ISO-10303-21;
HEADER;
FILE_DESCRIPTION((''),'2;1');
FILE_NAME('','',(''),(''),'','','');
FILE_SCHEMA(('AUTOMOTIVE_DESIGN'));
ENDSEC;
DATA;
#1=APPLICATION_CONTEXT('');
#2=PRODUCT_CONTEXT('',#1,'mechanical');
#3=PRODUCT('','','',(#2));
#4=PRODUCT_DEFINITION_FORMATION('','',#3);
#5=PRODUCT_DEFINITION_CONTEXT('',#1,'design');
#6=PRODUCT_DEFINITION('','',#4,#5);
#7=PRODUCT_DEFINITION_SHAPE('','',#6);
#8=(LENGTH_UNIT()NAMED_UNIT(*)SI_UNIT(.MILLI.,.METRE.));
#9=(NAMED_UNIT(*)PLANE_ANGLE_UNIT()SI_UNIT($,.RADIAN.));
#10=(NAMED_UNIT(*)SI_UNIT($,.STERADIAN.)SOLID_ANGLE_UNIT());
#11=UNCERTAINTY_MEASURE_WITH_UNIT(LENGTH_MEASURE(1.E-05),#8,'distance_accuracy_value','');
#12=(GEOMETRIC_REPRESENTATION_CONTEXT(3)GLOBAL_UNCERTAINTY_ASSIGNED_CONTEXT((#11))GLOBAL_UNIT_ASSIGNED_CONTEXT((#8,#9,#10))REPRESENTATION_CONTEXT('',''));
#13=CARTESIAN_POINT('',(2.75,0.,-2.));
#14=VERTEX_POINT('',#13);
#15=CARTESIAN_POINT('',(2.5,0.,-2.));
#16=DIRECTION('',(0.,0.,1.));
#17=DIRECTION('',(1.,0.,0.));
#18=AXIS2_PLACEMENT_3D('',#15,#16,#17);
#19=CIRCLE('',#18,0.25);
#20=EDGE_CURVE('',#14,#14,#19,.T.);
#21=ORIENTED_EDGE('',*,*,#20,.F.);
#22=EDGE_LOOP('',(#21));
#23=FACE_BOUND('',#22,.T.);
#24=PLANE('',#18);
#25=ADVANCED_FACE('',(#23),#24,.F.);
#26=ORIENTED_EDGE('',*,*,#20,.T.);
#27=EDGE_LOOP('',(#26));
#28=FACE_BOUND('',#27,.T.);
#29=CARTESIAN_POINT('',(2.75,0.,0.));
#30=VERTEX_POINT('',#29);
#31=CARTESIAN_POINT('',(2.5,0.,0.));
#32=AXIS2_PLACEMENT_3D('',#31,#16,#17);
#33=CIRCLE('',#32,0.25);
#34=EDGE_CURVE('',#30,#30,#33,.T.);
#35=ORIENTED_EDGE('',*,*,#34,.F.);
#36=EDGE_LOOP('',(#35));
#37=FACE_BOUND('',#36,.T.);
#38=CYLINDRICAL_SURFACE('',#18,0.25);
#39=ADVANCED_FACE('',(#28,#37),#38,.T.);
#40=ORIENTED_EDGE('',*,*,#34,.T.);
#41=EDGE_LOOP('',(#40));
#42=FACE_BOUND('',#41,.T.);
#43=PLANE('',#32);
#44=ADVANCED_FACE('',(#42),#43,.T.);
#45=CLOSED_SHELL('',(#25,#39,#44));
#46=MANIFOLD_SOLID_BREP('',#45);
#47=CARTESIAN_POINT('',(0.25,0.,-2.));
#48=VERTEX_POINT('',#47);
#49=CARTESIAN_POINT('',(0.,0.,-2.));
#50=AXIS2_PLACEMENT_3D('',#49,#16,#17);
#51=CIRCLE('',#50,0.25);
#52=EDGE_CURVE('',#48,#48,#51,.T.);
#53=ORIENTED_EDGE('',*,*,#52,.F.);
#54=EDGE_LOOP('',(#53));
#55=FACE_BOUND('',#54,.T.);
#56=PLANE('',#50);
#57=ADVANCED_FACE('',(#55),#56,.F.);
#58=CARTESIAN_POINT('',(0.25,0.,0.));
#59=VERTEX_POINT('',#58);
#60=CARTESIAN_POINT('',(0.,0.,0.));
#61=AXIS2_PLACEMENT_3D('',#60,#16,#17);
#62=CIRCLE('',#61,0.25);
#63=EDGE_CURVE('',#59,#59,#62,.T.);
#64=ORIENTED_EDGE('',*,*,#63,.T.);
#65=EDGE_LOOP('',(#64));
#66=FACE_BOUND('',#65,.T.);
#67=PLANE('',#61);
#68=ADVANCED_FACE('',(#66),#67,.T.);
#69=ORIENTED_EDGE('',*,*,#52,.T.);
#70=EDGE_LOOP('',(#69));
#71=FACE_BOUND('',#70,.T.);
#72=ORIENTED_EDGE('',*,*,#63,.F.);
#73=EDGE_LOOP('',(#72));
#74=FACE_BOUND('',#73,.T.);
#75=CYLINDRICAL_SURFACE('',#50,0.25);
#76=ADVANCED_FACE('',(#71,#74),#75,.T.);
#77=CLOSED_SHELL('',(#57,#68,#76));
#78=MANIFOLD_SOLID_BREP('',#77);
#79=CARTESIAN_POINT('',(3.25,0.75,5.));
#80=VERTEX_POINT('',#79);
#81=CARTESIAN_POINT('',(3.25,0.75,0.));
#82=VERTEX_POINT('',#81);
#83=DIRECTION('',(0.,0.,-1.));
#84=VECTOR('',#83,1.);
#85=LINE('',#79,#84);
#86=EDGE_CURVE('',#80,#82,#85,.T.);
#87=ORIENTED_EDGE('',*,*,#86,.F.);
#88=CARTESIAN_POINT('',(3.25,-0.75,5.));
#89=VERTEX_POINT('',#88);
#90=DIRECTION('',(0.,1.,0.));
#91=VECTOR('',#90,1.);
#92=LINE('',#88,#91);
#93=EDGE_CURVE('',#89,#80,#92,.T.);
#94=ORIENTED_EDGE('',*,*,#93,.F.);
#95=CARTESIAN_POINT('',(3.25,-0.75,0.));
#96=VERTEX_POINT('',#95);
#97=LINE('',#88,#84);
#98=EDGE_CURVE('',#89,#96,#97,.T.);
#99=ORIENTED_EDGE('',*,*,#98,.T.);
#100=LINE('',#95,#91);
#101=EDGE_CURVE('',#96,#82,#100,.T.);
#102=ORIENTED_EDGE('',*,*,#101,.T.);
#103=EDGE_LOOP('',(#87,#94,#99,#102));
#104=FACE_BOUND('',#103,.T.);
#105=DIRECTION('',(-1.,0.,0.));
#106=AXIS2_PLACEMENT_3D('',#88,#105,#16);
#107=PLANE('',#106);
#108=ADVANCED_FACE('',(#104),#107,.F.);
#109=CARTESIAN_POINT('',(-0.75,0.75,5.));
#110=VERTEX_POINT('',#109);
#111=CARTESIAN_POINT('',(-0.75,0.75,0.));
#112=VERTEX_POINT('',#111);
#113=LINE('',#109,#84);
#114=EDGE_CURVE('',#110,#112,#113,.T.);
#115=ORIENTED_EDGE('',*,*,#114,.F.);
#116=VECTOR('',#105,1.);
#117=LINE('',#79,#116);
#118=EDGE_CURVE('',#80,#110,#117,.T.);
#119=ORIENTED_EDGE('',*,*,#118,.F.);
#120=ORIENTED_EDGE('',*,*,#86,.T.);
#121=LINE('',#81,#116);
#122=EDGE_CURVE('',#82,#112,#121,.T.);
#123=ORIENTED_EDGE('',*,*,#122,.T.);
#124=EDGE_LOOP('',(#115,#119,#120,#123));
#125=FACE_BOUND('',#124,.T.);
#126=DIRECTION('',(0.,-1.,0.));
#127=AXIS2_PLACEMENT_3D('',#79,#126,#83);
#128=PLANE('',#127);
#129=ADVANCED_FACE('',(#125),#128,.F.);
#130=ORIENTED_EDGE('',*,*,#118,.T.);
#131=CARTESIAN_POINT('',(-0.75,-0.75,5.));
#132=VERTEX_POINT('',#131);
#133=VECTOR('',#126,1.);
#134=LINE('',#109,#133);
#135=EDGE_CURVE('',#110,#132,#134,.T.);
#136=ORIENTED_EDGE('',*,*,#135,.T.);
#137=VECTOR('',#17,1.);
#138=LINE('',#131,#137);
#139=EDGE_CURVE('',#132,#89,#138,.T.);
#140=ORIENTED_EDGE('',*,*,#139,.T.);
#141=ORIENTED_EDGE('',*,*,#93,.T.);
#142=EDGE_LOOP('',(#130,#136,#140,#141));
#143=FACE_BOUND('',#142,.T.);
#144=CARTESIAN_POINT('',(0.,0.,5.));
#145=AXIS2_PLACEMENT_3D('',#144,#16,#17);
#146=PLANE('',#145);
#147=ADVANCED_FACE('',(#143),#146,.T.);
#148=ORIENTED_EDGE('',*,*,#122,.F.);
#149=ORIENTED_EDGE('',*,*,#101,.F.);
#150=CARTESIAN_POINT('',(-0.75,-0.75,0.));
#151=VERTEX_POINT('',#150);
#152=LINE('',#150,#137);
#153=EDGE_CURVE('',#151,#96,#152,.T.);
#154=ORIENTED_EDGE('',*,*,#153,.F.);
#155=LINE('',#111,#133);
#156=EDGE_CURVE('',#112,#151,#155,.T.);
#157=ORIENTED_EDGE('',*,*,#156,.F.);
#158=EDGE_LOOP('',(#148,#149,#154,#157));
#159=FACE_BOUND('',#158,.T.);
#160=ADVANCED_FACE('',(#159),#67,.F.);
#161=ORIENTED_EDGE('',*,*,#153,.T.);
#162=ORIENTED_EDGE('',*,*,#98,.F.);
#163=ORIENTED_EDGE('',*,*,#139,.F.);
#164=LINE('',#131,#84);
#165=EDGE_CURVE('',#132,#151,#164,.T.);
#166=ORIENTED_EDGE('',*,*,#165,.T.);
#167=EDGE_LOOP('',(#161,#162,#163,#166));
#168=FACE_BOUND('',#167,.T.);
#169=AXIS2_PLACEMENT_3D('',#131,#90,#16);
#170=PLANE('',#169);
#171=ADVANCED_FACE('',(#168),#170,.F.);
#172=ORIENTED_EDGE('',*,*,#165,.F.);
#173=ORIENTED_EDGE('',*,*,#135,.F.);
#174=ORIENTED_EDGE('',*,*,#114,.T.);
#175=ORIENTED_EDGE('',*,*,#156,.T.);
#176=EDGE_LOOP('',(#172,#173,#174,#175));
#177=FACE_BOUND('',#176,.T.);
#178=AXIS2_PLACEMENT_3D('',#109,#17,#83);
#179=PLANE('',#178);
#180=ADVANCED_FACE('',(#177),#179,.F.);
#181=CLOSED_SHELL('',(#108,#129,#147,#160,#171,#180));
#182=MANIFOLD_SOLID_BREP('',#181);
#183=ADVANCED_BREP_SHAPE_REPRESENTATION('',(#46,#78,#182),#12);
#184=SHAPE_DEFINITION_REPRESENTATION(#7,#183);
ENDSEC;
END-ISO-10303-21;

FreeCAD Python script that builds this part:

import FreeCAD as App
import Part
import Sketcher

V = App.Vector

doc = App.newDocument("Part")
body = doc.addObject("PartDesign::Body", "Body")

# Sketch on XY plane
sketch1 = body.newObject("Sketcher::SketchObject", "Sketch")
sketch1.AttachmentSupport = (doc.getObject("XY_Plane"), [""])
sketch1.MapMode = "FlatFace"
sketch1.addGeometry([
    Part.LineSegment(V(-0.8, 0.8, 0), V(-0.8, -0.8, 0)),
    Part.LineSegment(V(-0.8, -0.8, 0), V(3.2, -0.8, 0)),
    Part.LineSegment(V(3.2, -0.8, 0), V(3.2, 0.8, 0)),
    Part.LineSegment(V(3.2, 0.8, 0), V(-0.8, 0.8, 0)),
], False)
sketch1.addConstraint([
    Sketcher.Constraint("Coincident", 0, 2, 1, 1),
    Sketcher.Constraint("Coincident", 1, 2, 2, 1),
    Sketcher.Constraint("Coincident", 2, 2, 3, 1),
    Sketcher.Constraint("Coincident", 3, 2, 0, 1),
    Sketcher.Constraint("Vertical", 0),
    Sketcher.Constraint("Horizontal", 1),
    Sketcher.Constraint("Vertical", 2),
    Sketcher.Constraint("Horizontal", 3),
    Sketcher.Constraint("DistanceX", 1, 1, 1, 2, 4.0),
    Sketcher.Constraint("DistanceY", 0, 2, 0, 1, 1.5),
    Sketcher.Constraint("DistanceX", 0, 2, -1, 1, 0.75),
    Sketcher.Constraint("DistanceY", 0, 2, -1, 1, 0.75),
])
pad1 = body.newObject("PartDesign::Pad", "Pad")
pad1.Profile = sketch1
pad1.Length = 5
body2 = doc.addObject("PartDesign::Body", "Body001")

# Sketch on XY plane
sketch2 = body2.newObject("Sketcher::SketchObject", "Sketch001")
sketch2.AttachmentSupport = (doc.getObject("XY_Plane001"), [""])
sketch2.MapMode = "FlatFace"
sketch2.addGeometry(Part.Circle(V(0, 0, 0), V(0, 0, 1), 0.25), False)
sketch2.addConstraint([
    Sketcher.Constraint("Coincident", 0, 3, -1, 1),
    Sketcher.Constraint("Diameter", 0, 0.5),
])
pad2 = body2.newObject("PartDesign::Pad", "Pad001")
pad2.Profile = sketch2
pad2.Length = 2
pad2.Reversed = True
body3 = doc.addObject("PartDesign::Body", "Body002")

# Sketch on XY plane
sketch3 = body3.newObject("Sketcher::SketchObject", "Sketch002")
sketch3.AttachmentSupport = (doc.getObject("XY_Plane002"), [""])
sketch3.MapMode = "FlatFace"
sketch3.addGeometry(Part.Circle(V(2.5, 0, 0), V(0, 0, 1), 0.25), False)
sketch3.addConstraint([
    Sketcher.Constraint("PointOnObject", 0, 3, -1),
    Sketcher.Constraint("Diameter", 0, 0.5),
    Sketcher.Constraint("DistanceX", -1, 1, 0, 3, 2.5),
])
pad3 = body3.newObject("PartDesign::Pad", "Pad002")
pad3.Profile = sketch3
pad3.Length = 2
pad3.Reversed = True

doc.recompute()
